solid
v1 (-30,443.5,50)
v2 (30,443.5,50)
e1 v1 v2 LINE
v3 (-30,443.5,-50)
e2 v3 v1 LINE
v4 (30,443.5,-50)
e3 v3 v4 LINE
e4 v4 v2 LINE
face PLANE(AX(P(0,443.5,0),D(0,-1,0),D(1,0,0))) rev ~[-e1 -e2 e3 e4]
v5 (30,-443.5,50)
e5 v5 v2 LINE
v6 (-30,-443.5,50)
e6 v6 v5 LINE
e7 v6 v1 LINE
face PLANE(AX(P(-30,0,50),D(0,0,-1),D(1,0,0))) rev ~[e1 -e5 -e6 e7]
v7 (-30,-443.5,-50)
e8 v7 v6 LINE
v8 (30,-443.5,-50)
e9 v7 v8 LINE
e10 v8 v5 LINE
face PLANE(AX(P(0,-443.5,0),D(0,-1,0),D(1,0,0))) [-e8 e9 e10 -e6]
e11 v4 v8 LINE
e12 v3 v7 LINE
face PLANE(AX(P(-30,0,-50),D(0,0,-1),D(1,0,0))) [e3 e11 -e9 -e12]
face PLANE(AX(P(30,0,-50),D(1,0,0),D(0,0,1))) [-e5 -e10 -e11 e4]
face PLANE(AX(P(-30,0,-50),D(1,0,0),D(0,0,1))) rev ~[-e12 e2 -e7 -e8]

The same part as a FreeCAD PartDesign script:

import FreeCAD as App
import Part
import Sketcher

doc = App.newDocument("Part")
body = doc.addObject("PartDesign::Body", "Body")

# Sketch on XZ plane
sketch1 = body.newObject("Sketcher::SketchObject", "Sketch")
sketch1.AttachmentSupport = (doc.getObject("XZ_Plane"), [""])
sketch1.MapMode = "FlatFace"
sketch1.addGeometry([
    Part.LineSegment(App.Vector(-30, 50, 0), App.Vector(-30, -50, 0)),
    Part.LineSegment(App.Vector(-30, -50, 0), App.Vector(30, -50, 0)),
    Part.LineSegment(App.Vector(30, -50, 0), App.Vector(30, 50, 0)),
    Part.LineSegment(App.Vector(30, 50, 0), App.Vector(-30, 50, 0)),
], False)
sketch1.addConstraint([
    Sketcher.Constraint("Coincident", 0, 2, 1, 1),
    Sketcher.Constraint("Coincident", 1, 2, 2, 1),
    Sketcher.Constraint("Coincident", 2, 2, 3, 1),
    Sketcher.Constraint("Coincident", 3, 2, 0, 1),
    Sketcher.Constraint("Vertical", 0),
    Sketcher.Constraint("Horizontal", 1),
    Sketcher.Constraint("Vertical", 2),
    Sketcher.Constraint("Horizontal", 3),
    Sketcher.Constraint("Symmetric", 0, 2, 2, 2, -1, 1),
    Sketcher.Constraint("DistanceX", 1, 1, 1, 2, 60.0),
    Sketcher.Constraint("DistanceY", 0, 2, 0, 1, 100.0),
])
pad1 = body.newObject("PartDesign::Pad", "Pad")
pad1.Profile = sketch1
pad1.Length = 887
pad1.Midplane = True

doc.recompute()
